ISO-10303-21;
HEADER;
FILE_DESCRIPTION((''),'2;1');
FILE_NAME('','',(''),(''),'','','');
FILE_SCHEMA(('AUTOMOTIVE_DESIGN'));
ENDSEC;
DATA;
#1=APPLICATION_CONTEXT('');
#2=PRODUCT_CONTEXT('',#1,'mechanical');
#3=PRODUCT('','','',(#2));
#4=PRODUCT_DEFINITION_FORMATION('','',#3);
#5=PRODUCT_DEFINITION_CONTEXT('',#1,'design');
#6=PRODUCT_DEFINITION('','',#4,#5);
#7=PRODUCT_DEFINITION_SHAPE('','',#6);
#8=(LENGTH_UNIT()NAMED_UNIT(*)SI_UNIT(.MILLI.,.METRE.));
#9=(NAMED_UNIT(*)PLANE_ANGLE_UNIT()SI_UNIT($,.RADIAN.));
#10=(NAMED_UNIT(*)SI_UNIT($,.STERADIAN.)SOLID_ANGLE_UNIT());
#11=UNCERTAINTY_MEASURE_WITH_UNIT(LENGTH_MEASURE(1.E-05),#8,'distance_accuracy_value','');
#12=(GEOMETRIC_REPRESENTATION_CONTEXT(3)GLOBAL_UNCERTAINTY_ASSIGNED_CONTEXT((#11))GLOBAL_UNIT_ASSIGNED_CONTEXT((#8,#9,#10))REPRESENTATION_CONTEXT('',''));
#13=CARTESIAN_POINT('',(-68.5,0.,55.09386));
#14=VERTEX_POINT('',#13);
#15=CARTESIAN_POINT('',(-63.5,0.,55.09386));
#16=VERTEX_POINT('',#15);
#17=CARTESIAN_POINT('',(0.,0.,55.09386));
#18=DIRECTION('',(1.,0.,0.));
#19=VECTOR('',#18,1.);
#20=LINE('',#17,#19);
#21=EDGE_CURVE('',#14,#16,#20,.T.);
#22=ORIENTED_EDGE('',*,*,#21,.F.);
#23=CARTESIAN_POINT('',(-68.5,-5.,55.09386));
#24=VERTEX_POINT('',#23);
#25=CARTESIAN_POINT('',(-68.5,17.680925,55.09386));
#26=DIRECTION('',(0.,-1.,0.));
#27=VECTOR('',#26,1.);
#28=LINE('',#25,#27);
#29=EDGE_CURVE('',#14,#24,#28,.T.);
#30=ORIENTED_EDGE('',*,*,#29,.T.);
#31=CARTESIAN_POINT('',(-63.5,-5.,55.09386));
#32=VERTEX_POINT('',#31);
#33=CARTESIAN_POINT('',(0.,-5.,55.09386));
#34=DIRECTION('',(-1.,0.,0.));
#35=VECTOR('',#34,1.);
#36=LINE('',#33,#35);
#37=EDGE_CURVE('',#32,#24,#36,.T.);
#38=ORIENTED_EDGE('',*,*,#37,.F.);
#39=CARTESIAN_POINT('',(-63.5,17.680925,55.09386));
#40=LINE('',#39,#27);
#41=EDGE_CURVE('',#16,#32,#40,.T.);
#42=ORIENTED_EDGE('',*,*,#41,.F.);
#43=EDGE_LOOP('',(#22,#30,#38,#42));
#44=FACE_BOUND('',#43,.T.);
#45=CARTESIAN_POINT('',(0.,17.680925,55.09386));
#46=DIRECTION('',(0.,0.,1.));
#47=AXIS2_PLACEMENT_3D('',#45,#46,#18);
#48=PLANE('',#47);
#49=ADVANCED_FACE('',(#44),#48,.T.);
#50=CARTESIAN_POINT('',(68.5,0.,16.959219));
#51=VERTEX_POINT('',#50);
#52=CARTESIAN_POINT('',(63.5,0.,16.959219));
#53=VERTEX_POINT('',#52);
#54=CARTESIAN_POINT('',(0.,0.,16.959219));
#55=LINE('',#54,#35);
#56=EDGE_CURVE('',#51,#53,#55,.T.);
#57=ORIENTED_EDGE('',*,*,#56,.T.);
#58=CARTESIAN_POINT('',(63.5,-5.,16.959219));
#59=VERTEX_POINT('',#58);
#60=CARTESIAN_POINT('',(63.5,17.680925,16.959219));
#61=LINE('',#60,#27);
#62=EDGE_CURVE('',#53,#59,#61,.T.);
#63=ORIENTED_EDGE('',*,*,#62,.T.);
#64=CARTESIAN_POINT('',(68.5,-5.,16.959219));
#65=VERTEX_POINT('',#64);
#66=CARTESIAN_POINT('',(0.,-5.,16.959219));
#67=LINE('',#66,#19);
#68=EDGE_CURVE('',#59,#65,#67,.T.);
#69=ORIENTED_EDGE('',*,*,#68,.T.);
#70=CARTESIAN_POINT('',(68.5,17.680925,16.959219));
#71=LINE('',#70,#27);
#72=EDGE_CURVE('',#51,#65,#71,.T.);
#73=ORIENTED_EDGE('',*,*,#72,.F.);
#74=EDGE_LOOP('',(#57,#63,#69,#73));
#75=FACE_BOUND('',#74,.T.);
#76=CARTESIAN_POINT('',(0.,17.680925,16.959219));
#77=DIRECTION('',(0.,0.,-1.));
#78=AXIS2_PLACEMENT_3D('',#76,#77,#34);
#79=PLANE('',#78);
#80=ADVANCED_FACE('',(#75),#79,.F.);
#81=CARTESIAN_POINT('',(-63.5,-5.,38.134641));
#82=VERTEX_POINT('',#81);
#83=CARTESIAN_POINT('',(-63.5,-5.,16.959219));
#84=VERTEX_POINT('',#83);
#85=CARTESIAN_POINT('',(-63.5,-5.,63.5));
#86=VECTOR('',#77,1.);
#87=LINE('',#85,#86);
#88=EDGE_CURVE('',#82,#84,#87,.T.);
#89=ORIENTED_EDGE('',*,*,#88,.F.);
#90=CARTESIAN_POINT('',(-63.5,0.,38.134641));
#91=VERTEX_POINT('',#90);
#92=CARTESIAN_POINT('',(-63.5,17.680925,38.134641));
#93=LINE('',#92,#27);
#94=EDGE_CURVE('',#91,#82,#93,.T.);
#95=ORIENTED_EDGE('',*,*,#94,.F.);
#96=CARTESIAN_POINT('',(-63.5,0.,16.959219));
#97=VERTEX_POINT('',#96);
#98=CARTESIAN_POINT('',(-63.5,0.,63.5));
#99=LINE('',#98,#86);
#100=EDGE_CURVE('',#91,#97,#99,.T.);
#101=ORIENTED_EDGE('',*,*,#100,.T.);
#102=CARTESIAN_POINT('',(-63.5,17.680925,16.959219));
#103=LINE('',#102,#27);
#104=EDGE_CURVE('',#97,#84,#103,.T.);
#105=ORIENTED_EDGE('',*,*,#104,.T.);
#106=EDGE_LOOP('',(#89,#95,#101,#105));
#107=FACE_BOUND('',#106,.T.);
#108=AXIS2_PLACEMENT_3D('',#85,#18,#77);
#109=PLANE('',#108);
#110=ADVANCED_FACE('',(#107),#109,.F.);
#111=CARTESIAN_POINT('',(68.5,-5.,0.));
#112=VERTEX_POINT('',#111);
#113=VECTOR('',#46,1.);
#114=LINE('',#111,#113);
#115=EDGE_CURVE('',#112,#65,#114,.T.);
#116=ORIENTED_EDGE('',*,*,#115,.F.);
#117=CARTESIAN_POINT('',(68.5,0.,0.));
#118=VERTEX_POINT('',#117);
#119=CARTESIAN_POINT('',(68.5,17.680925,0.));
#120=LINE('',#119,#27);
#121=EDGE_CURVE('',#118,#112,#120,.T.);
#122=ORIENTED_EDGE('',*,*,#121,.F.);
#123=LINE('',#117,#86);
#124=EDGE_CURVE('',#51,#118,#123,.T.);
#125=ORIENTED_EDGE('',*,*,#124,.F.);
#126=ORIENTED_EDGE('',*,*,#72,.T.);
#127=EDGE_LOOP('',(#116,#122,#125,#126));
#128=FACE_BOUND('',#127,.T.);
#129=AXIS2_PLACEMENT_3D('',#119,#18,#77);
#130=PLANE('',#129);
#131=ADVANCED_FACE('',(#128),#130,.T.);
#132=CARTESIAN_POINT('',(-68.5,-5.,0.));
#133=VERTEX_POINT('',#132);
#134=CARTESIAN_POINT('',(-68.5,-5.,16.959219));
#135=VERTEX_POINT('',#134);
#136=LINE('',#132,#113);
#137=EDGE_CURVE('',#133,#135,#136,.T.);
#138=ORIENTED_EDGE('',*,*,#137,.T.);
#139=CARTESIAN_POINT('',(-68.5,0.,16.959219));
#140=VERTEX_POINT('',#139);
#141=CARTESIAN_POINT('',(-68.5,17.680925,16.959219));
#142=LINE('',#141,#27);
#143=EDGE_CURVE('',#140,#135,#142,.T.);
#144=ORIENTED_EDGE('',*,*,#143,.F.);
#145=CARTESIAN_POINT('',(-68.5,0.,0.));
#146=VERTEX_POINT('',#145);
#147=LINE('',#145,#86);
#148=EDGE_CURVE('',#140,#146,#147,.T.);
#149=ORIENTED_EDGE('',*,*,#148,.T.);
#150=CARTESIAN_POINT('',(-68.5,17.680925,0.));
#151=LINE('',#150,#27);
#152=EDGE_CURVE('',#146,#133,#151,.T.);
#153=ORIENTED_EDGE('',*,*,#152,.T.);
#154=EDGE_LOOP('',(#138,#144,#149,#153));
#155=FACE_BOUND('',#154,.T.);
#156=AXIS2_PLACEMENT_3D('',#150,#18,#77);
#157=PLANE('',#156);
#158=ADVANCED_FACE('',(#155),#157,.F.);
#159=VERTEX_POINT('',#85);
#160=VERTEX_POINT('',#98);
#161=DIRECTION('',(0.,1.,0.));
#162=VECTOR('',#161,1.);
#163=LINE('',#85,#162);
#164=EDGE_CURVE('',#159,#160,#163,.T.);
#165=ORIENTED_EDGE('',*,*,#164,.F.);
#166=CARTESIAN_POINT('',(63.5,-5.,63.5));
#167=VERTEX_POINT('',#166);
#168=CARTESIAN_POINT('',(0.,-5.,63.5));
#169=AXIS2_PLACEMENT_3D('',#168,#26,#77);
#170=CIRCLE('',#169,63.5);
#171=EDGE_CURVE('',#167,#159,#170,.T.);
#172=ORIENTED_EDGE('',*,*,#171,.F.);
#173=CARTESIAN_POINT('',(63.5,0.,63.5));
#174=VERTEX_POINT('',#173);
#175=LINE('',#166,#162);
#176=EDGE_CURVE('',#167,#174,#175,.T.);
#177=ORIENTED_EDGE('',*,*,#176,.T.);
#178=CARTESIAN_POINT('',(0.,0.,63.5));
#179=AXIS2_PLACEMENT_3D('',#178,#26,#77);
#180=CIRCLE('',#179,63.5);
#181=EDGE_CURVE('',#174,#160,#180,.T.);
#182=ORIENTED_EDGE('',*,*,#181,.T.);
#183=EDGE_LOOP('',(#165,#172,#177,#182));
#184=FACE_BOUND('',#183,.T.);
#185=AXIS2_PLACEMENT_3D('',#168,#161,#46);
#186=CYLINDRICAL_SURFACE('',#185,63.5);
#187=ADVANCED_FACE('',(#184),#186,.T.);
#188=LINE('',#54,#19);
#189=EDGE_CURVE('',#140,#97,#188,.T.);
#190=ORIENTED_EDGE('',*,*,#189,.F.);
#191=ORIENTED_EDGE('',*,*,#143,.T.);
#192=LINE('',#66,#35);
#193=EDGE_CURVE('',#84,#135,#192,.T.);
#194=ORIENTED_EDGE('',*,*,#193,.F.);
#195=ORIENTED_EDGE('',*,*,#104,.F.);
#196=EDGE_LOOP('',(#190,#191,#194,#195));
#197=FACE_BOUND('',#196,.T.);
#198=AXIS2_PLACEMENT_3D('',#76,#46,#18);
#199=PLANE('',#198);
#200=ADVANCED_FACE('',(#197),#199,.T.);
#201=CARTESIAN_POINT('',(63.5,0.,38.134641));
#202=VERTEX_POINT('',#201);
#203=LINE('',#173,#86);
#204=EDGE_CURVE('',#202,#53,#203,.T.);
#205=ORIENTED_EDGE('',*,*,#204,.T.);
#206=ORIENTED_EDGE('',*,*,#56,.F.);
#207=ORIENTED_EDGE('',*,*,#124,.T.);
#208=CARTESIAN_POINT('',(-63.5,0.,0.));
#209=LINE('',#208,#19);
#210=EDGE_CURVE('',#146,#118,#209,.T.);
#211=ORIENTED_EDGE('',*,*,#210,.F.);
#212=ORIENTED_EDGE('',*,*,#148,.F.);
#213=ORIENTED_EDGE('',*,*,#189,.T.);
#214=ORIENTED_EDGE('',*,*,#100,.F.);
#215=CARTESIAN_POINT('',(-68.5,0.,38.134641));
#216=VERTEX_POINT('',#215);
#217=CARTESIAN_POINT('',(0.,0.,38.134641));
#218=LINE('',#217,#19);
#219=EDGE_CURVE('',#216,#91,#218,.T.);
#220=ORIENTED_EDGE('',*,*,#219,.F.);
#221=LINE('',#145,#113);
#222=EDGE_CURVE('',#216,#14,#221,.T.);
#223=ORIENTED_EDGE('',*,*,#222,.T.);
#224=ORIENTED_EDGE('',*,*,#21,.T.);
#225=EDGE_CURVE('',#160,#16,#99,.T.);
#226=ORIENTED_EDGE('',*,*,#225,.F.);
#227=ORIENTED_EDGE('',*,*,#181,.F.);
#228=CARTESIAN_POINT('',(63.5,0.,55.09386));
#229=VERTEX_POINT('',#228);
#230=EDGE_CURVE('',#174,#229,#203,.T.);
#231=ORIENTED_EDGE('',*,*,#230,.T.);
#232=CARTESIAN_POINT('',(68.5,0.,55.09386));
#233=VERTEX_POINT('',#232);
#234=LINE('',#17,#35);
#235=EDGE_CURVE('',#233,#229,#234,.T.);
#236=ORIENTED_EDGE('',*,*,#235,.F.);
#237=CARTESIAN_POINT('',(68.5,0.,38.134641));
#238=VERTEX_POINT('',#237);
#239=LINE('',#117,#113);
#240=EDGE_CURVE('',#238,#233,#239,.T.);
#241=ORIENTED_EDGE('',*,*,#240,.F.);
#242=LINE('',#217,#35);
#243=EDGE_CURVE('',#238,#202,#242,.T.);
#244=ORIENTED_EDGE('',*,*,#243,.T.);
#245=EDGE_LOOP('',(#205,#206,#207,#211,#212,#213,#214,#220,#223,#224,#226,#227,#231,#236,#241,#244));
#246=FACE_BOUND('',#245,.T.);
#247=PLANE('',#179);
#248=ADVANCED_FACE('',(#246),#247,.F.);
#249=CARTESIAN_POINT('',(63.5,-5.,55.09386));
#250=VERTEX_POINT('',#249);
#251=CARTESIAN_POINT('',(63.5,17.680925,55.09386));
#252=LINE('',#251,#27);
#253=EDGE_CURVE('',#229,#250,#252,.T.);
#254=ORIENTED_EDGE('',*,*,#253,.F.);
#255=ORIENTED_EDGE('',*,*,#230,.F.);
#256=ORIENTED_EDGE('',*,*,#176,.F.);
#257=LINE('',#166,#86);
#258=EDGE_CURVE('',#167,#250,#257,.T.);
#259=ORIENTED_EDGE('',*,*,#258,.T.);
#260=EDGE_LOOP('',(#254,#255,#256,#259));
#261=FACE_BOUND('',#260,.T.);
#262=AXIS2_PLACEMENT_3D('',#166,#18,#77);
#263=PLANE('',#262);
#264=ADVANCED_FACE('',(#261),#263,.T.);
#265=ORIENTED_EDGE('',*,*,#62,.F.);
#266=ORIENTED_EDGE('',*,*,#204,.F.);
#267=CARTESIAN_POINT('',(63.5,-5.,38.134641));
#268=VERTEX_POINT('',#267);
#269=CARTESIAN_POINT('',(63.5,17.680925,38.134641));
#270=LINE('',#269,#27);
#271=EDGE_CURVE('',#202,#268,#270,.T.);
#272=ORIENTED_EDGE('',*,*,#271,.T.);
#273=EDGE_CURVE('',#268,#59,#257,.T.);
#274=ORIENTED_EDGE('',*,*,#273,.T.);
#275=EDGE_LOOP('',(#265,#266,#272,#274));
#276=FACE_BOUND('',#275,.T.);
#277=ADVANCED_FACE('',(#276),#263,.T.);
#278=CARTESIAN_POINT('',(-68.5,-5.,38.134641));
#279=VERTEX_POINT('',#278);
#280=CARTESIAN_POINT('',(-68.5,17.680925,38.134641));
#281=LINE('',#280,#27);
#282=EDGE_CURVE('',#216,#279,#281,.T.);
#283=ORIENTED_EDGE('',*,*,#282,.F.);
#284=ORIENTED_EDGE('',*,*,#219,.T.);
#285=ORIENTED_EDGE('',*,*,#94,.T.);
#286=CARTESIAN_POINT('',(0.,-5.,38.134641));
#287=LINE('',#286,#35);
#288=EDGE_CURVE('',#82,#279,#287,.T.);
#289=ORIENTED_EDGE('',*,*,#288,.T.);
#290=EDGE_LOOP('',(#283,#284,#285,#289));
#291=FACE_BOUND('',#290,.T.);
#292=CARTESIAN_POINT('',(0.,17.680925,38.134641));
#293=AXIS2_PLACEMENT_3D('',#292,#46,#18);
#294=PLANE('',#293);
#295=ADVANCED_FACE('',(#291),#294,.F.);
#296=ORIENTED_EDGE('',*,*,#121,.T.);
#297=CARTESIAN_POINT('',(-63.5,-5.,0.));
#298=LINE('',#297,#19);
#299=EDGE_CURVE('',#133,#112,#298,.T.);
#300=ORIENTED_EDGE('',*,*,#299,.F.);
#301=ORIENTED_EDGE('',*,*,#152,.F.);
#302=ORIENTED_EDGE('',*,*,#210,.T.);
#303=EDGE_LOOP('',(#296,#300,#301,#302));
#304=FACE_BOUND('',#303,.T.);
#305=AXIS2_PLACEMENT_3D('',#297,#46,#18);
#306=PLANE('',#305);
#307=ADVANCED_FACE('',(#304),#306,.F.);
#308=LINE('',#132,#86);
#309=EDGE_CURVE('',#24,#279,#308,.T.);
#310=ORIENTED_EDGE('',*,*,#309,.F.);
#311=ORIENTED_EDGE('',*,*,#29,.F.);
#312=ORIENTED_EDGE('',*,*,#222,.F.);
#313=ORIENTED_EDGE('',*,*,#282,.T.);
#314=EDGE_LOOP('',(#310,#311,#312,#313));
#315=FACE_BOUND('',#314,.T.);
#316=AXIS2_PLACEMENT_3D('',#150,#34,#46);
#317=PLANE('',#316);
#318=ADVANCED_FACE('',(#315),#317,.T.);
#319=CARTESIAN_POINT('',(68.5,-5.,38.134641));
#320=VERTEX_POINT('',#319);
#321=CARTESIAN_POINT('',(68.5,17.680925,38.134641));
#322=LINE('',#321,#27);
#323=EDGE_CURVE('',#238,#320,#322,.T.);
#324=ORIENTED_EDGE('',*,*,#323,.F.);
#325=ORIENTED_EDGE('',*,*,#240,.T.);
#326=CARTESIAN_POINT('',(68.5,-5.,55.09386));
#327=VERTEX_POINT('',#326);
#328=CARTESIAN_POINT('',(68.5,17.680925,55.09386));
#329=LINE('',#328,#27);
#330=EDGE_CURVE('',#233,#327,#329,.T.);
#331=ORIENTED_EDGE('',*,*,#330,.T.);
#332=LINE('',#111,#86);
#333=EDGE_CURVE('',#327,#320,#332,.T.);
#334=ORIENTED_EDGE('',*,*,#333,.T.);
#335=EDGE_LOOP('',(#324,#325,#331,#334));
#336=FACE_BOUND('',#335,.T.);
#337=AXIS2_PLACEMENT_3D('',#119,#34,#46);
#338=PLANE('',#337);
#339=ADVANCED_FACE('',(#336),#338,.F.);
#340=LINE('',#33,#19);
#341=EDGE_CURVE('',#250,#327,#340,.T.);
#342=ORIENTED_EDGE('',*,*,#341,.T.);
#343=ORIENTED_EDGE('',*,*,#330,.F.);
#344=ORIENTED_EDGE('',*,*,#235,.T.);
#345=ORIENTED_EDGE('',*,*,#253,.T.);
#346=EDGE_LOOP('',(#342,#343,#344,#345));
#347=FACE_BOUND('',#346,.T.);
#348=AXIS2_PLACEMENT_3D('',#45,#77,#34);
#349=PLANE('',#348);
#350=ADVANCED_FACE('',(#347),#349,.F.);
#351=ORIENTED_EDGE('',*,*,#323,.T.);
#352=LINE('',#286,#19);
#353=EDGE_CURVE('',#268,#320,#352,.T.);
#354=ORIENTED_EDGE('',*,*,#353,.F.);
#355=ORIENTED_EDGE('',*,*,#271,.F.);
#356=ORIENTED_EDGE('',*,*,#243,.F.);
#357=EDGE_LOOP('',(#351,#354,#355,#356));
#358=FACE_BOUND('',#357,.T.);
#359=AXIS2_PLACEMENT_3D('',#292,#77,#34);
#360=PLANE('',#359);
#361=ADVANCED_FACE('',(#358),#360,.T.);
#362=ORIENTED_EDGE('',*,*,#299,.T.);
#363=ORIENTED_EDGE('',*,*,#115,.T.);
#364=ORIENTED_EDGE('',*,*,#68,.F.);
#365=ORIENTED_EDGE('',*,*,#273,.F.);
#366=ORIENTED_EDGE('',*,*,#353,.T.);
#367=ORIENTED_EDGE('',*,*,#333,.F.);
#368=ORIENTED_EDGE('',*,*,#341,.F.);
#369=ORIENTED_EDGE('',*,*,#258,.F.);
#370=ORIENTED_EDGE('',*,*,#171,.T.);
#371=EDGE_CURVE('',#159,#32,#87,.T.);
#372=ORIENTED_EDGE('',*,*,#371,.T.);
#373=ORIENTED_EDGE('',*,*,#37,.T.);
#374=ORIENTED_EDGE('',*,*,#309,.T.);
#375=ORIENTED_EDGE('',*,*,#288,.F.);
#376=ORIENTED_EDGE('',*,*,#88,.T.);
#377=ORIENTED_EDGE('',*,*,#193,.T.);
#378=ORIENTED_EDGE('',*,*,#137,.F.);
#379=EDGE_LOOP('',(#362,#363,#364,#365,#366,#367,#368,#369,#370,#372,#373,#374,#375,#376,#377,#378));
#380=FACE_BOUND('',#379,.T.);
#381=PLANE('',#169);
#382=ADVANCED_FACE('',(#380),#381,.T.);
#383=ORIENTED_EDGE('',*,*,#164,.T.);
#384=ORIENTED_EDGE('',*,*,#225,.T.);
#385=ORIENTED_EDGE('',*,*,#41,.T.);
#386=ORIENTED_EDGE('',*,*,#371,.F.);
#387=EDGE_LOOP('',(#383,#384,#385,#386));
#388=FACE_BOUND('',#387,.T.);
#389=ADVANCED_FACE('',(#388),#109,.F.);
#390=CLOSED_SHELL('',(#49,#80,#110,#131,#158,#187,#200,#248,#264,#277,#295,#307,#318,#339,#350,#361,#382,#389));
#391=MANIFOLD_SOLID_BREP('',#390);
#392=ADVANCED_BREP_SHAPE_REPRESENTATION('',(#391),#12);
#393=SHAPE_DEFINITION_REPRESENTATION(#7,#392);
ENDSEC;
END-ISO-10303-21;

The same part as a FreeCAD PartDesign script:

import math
import FreeCAD as App
import Part
import Sketcher
from FreeCAD import Vector
Q = App.Units.Quantity

doc = App.newDocument("Part")
body = doc.addObject("PartDesign::Body", "Body")

sketch1 = body.newObject("Sketcher::SketchObject", "Sketch")
sketch1.AttachmentSupport = (doc.getObject("XZ_Plane"), [""])
sketch1.MapMode = "FlatFace"
sketch1.addGeometry(Part.LineSegment(Vector(-64, 64, 0), Vector(-64, 0, 0)), False)
sketch1.addGeometry(Part.LineSegment(Vector(-64, 0, 0), Vector(64, 0, 0)), False)
sketch1.addGeometry(Part.LineSegment(Vector(64, 0, 0), Vector(64, 64, 0)), False)
sketch1.addGeometry(Part.ArcOfCircle(Part.Circle(Vector(0, 64, 0), Vector(0, 0, 1), 64), math.radians(0), math.radians(180)), False)
sketch1.addConstraint(Sketcher.Constraint("Coincident", 0, 2, 1, 1))
sketch1.addConstraint(Sketcher.Constraint("Coincident", 1, 2, 2, 1))
sketch1.addConstraint(Sketcher.Constraint("Tangent", 2, 2, 3, 1))
sketch1.addConstraint(Sketcher.Constraint("Tangent", 3, 2, 0, 1))
sketch1.addConstraint(Sketcher.Constraint("Vertical", 0))
sketch1.addConstraint(Sketcher.Constraint("Horizontal", 1))
sketch1.addConstraint(Sketcher.Constraint("Vertical", 2))
sketch1.addConstraint(Sketcher.Constraint("Symmetric", 0, 2, 1, 2, -1, 1))
sketch1.addConstraint(Sketcher.Constraint("Radius", 3, Q("2.5 in")))
sketch1.addConstraint(Sketcher.Constraint("DistanceY", 0, 2, 0, 1, Q("2.5 in")))
pad1 = body.newObject("PartDesign::Pad", "Pad")
pad1.Profile = sketch1
pad1.Length = 5

sketch2 = body.newObject("Sketcher::SketchObject", "Sketch001")
sketch2.AttachmentSupport = (doc.getObject("XZ_Plane"), [""])
sketch2.MapMode = "FlatFace"
sketch2.AttachmentOffset = App.Placement(Vector(0, 0, 5), App.Rotation())
sketch2.addGeometry(Part.LineSegment(Vector(63.5, 17, 0), Vector(63.5, 0, 0)), False)
sketch2.addGeometry(Part.LineSegment(Vector(63.5, 0, 0), Vector(68.5, 0, 0)), False)
sketch2.addGeometry(Part.LineSegment(Vector(68.5, 0, 0), Vector(68.5, 17, 0)), False)
sketch2.addGeometry(Part.LineSegment(Vector(68.5, 17, 0), Vector(63.5, 17, 0)), False)
sketch2.addGeometry(Part.LineSegment(Vector(63.5, 55.1, 0), Vector(63.5, 38.1, 0)), False)
sketch2.addGeometry(Part.LineSegment(Vector(63.5, 38.1, 0), Vector(68.5, 38.1, 0)), False)
sketch2.addGeometry(Part.LineSegment(Vector(68.5, 38.1, 0), Vector(68.5, 55.1, 0)), False)
sketch2.addGeometry(Part.LineSegment(Vector(68.5, 55.1, 0), Vector(63.5, 55.1, 0)), False)
sketch2.addGeometry(Part.LineSegment(Vector(-68.5, 55.1, 0), Vector(-68.5, 38.1, 0)), False)
sketch2.addGeometry(Part.LineSegment(Vector(-68.5, 38.1, 0), Vector(-63.5, 38.1, 0)), False)
sketch2.addGeometry(Part.LineSegment(Vector(-63.5, 38.1, 0), Vector(-63.5, 55.1, 0)), False)
sketch2.addGeometry(Part.LineSegment(Vector(-63.5, 55.1, 0), Vector(-68.5, 55.1, 0)), False)
sketch2.addGeometry(Part.LineSegment(Vector(-68.5, 17, 0), Vector(-68.5, 0, 0)), False)
sketch2.addGeometry(Part.LineSegment(Vector(-68.5, 0, 0), Vector(-63.5, 0, 0)), False)
sketch2.addGeometry(Part.LineSegment(Vector(-63.5, 0, 0), Vector(-63.5, 17, 0)), False)
sketch2.addGeometry(Part.LineSegment(Vector(-63.5, 17, 0), Vector(-68.5, 17, 0)), False)
sketch2.addConstraint(Sketcher.Constraint("Coincident", 0, 2, 1, 1))
sketch2.addConstraint(Sketcher.Constraint("Coincident", 1, 2, 2, 1))
sketch2.addConstraint(Sketcher.Constraint("Coincident", 2, 2, 3, 1))
sketch2.addConstraint(Sketcher.Constraint("Coincident", 3, 2, 0, 1))
sketch2.addConstraint(Sketcher.Constraint("Coincident", 4, 2, 5, 1))
sketch2.addConstraint(Sketcher.Constraint("Coincident", 5, 2, 6, 1))
sketch2.addConstraint(Sketcher.Constraint("Coincident", 6, 2, 7, 1))
sketch2.addConstraint(Sketcher.Constraint("Coincident", 7, 2, 4, 1))
sketch2.addConstraint(Sketcher.Constraint("Coincident", 8, 2, 9, 1))
sketch2.addConstraint(Sketcher.Constraint("Coincident", 9, 2, 10, 1))
sketch2.addConstraint(Sketcher.Constraint("Coincident", 10, 2, 11, 1))
sketch2.addConstraint(Sketcher.Constraint("Coincident", 11, 2, 8, 1))
sketch2.addConstraint(Sketcher.Constraint("Coincident", 12, 2, 13, 1))
sketch2.addConstraint(Sketcher.Constraint("Coincident", 13, 2, 14, 1))
sketch2.addConstraint(Sketcher.Constraint("Coincident", 14, 2, 15, 1))
sketch2.addConstraint(Sketcher.Constraint("Coincident", 15, 2, 12, 1))
sketch2.addConstraint(Sketcher.Constraint("Vertical", 0))
sketch2.addConstraint(Sketcher.Constraint("Horizontal", 1))
sketch2.addConstraint(Sketcher.Constraint("Vertical", 2))
sketch2.addConstraint(Sketcher.Constraint("Horizontal", 3))
sketch2.addConstraint(Sketcher.Constraint("Vertical", 4))
sketch2.addConstraint(Sketcher.Constraint("Horizontal", 5))
sketch2.addConstraint(Sketcher.Constraint("Vertical", 6))
sketch2.addConstraint(Sketcher.Constraint("Horizontal", 7))
sketch2.addConstraint(Sketcher.Constraint("Vertical", 8))
sketch2.addConstraint(Sketcher.Constraint("Horizontal", 9))
sketch2.addConstraint(Sketcher.Constraint("Vertical", 10))
sketch2.addConstraint(Sketcher.Constraint("Horizontal", 11))
sketch2.addConstraint(Sketcher.Constraint("Vertical", 12))
sketch2.addConstraint(Sketcher.Constraint("Horizontal", 13))
sketch2.addConstraint(Sketcher.Constraint("Vertical", 14))
sketch2.addConstraint(Sketcher.Constraint("Horizontal", 15))
sketch2.addConstraint(Sketcher.Constraint("Symmetric", 1, 2, 12, 2, -1, 1))
sketch2.addConstraint(Sketcher.Constraint("Symmetric", 5, 2, 8, 2, -2))
sketch2.addConstraint(Sketcher.Constraint("Symmetric", 7, 2, 10, 2, -2))
sketch2.addConstraint(Sketcher.Constraint("Symmetric", 0, 2, 13, 2, -2))
sketch2.addConstraint(Sketcher.Constraint("Horizontal", 3, 2, 14, 2))
sketch2.addConstraint(Sketcher.Constraint("Vertical", 3, 2, 4, 2))
sketch2.addConstraint(Sketcher.Constraint("Vertical", 2, 2, 5, 2))
sketch2.addConstraint(Sketcher.Constraint("Equal", 2, 4))
sketch2.addConstraint(Sketcher.Constraint("DistanceX", 9, 2, 4, 2, Q("5 in")))
sketch2.addConstraint(Sketcher.Constraint("DistanceX", 1, 1, 1, 2, Q("5 mm")))
sketch2.addConstraint(Sketcher.Constraint("DistanceY", 0, 2, 0, 1, Q("16.959219 mm")))
sketch2.addConstraint(Sketcher.Constraint("DistanceY", -1, 1, 4, 2, Q("38.134641 mm")))
pad2 = body.newObject("PartDesign::Pad", "Pad001")
pad2.Profile = sketch2
pad2.Length = 5
pad2.Reversed = True

doc.recompute()
